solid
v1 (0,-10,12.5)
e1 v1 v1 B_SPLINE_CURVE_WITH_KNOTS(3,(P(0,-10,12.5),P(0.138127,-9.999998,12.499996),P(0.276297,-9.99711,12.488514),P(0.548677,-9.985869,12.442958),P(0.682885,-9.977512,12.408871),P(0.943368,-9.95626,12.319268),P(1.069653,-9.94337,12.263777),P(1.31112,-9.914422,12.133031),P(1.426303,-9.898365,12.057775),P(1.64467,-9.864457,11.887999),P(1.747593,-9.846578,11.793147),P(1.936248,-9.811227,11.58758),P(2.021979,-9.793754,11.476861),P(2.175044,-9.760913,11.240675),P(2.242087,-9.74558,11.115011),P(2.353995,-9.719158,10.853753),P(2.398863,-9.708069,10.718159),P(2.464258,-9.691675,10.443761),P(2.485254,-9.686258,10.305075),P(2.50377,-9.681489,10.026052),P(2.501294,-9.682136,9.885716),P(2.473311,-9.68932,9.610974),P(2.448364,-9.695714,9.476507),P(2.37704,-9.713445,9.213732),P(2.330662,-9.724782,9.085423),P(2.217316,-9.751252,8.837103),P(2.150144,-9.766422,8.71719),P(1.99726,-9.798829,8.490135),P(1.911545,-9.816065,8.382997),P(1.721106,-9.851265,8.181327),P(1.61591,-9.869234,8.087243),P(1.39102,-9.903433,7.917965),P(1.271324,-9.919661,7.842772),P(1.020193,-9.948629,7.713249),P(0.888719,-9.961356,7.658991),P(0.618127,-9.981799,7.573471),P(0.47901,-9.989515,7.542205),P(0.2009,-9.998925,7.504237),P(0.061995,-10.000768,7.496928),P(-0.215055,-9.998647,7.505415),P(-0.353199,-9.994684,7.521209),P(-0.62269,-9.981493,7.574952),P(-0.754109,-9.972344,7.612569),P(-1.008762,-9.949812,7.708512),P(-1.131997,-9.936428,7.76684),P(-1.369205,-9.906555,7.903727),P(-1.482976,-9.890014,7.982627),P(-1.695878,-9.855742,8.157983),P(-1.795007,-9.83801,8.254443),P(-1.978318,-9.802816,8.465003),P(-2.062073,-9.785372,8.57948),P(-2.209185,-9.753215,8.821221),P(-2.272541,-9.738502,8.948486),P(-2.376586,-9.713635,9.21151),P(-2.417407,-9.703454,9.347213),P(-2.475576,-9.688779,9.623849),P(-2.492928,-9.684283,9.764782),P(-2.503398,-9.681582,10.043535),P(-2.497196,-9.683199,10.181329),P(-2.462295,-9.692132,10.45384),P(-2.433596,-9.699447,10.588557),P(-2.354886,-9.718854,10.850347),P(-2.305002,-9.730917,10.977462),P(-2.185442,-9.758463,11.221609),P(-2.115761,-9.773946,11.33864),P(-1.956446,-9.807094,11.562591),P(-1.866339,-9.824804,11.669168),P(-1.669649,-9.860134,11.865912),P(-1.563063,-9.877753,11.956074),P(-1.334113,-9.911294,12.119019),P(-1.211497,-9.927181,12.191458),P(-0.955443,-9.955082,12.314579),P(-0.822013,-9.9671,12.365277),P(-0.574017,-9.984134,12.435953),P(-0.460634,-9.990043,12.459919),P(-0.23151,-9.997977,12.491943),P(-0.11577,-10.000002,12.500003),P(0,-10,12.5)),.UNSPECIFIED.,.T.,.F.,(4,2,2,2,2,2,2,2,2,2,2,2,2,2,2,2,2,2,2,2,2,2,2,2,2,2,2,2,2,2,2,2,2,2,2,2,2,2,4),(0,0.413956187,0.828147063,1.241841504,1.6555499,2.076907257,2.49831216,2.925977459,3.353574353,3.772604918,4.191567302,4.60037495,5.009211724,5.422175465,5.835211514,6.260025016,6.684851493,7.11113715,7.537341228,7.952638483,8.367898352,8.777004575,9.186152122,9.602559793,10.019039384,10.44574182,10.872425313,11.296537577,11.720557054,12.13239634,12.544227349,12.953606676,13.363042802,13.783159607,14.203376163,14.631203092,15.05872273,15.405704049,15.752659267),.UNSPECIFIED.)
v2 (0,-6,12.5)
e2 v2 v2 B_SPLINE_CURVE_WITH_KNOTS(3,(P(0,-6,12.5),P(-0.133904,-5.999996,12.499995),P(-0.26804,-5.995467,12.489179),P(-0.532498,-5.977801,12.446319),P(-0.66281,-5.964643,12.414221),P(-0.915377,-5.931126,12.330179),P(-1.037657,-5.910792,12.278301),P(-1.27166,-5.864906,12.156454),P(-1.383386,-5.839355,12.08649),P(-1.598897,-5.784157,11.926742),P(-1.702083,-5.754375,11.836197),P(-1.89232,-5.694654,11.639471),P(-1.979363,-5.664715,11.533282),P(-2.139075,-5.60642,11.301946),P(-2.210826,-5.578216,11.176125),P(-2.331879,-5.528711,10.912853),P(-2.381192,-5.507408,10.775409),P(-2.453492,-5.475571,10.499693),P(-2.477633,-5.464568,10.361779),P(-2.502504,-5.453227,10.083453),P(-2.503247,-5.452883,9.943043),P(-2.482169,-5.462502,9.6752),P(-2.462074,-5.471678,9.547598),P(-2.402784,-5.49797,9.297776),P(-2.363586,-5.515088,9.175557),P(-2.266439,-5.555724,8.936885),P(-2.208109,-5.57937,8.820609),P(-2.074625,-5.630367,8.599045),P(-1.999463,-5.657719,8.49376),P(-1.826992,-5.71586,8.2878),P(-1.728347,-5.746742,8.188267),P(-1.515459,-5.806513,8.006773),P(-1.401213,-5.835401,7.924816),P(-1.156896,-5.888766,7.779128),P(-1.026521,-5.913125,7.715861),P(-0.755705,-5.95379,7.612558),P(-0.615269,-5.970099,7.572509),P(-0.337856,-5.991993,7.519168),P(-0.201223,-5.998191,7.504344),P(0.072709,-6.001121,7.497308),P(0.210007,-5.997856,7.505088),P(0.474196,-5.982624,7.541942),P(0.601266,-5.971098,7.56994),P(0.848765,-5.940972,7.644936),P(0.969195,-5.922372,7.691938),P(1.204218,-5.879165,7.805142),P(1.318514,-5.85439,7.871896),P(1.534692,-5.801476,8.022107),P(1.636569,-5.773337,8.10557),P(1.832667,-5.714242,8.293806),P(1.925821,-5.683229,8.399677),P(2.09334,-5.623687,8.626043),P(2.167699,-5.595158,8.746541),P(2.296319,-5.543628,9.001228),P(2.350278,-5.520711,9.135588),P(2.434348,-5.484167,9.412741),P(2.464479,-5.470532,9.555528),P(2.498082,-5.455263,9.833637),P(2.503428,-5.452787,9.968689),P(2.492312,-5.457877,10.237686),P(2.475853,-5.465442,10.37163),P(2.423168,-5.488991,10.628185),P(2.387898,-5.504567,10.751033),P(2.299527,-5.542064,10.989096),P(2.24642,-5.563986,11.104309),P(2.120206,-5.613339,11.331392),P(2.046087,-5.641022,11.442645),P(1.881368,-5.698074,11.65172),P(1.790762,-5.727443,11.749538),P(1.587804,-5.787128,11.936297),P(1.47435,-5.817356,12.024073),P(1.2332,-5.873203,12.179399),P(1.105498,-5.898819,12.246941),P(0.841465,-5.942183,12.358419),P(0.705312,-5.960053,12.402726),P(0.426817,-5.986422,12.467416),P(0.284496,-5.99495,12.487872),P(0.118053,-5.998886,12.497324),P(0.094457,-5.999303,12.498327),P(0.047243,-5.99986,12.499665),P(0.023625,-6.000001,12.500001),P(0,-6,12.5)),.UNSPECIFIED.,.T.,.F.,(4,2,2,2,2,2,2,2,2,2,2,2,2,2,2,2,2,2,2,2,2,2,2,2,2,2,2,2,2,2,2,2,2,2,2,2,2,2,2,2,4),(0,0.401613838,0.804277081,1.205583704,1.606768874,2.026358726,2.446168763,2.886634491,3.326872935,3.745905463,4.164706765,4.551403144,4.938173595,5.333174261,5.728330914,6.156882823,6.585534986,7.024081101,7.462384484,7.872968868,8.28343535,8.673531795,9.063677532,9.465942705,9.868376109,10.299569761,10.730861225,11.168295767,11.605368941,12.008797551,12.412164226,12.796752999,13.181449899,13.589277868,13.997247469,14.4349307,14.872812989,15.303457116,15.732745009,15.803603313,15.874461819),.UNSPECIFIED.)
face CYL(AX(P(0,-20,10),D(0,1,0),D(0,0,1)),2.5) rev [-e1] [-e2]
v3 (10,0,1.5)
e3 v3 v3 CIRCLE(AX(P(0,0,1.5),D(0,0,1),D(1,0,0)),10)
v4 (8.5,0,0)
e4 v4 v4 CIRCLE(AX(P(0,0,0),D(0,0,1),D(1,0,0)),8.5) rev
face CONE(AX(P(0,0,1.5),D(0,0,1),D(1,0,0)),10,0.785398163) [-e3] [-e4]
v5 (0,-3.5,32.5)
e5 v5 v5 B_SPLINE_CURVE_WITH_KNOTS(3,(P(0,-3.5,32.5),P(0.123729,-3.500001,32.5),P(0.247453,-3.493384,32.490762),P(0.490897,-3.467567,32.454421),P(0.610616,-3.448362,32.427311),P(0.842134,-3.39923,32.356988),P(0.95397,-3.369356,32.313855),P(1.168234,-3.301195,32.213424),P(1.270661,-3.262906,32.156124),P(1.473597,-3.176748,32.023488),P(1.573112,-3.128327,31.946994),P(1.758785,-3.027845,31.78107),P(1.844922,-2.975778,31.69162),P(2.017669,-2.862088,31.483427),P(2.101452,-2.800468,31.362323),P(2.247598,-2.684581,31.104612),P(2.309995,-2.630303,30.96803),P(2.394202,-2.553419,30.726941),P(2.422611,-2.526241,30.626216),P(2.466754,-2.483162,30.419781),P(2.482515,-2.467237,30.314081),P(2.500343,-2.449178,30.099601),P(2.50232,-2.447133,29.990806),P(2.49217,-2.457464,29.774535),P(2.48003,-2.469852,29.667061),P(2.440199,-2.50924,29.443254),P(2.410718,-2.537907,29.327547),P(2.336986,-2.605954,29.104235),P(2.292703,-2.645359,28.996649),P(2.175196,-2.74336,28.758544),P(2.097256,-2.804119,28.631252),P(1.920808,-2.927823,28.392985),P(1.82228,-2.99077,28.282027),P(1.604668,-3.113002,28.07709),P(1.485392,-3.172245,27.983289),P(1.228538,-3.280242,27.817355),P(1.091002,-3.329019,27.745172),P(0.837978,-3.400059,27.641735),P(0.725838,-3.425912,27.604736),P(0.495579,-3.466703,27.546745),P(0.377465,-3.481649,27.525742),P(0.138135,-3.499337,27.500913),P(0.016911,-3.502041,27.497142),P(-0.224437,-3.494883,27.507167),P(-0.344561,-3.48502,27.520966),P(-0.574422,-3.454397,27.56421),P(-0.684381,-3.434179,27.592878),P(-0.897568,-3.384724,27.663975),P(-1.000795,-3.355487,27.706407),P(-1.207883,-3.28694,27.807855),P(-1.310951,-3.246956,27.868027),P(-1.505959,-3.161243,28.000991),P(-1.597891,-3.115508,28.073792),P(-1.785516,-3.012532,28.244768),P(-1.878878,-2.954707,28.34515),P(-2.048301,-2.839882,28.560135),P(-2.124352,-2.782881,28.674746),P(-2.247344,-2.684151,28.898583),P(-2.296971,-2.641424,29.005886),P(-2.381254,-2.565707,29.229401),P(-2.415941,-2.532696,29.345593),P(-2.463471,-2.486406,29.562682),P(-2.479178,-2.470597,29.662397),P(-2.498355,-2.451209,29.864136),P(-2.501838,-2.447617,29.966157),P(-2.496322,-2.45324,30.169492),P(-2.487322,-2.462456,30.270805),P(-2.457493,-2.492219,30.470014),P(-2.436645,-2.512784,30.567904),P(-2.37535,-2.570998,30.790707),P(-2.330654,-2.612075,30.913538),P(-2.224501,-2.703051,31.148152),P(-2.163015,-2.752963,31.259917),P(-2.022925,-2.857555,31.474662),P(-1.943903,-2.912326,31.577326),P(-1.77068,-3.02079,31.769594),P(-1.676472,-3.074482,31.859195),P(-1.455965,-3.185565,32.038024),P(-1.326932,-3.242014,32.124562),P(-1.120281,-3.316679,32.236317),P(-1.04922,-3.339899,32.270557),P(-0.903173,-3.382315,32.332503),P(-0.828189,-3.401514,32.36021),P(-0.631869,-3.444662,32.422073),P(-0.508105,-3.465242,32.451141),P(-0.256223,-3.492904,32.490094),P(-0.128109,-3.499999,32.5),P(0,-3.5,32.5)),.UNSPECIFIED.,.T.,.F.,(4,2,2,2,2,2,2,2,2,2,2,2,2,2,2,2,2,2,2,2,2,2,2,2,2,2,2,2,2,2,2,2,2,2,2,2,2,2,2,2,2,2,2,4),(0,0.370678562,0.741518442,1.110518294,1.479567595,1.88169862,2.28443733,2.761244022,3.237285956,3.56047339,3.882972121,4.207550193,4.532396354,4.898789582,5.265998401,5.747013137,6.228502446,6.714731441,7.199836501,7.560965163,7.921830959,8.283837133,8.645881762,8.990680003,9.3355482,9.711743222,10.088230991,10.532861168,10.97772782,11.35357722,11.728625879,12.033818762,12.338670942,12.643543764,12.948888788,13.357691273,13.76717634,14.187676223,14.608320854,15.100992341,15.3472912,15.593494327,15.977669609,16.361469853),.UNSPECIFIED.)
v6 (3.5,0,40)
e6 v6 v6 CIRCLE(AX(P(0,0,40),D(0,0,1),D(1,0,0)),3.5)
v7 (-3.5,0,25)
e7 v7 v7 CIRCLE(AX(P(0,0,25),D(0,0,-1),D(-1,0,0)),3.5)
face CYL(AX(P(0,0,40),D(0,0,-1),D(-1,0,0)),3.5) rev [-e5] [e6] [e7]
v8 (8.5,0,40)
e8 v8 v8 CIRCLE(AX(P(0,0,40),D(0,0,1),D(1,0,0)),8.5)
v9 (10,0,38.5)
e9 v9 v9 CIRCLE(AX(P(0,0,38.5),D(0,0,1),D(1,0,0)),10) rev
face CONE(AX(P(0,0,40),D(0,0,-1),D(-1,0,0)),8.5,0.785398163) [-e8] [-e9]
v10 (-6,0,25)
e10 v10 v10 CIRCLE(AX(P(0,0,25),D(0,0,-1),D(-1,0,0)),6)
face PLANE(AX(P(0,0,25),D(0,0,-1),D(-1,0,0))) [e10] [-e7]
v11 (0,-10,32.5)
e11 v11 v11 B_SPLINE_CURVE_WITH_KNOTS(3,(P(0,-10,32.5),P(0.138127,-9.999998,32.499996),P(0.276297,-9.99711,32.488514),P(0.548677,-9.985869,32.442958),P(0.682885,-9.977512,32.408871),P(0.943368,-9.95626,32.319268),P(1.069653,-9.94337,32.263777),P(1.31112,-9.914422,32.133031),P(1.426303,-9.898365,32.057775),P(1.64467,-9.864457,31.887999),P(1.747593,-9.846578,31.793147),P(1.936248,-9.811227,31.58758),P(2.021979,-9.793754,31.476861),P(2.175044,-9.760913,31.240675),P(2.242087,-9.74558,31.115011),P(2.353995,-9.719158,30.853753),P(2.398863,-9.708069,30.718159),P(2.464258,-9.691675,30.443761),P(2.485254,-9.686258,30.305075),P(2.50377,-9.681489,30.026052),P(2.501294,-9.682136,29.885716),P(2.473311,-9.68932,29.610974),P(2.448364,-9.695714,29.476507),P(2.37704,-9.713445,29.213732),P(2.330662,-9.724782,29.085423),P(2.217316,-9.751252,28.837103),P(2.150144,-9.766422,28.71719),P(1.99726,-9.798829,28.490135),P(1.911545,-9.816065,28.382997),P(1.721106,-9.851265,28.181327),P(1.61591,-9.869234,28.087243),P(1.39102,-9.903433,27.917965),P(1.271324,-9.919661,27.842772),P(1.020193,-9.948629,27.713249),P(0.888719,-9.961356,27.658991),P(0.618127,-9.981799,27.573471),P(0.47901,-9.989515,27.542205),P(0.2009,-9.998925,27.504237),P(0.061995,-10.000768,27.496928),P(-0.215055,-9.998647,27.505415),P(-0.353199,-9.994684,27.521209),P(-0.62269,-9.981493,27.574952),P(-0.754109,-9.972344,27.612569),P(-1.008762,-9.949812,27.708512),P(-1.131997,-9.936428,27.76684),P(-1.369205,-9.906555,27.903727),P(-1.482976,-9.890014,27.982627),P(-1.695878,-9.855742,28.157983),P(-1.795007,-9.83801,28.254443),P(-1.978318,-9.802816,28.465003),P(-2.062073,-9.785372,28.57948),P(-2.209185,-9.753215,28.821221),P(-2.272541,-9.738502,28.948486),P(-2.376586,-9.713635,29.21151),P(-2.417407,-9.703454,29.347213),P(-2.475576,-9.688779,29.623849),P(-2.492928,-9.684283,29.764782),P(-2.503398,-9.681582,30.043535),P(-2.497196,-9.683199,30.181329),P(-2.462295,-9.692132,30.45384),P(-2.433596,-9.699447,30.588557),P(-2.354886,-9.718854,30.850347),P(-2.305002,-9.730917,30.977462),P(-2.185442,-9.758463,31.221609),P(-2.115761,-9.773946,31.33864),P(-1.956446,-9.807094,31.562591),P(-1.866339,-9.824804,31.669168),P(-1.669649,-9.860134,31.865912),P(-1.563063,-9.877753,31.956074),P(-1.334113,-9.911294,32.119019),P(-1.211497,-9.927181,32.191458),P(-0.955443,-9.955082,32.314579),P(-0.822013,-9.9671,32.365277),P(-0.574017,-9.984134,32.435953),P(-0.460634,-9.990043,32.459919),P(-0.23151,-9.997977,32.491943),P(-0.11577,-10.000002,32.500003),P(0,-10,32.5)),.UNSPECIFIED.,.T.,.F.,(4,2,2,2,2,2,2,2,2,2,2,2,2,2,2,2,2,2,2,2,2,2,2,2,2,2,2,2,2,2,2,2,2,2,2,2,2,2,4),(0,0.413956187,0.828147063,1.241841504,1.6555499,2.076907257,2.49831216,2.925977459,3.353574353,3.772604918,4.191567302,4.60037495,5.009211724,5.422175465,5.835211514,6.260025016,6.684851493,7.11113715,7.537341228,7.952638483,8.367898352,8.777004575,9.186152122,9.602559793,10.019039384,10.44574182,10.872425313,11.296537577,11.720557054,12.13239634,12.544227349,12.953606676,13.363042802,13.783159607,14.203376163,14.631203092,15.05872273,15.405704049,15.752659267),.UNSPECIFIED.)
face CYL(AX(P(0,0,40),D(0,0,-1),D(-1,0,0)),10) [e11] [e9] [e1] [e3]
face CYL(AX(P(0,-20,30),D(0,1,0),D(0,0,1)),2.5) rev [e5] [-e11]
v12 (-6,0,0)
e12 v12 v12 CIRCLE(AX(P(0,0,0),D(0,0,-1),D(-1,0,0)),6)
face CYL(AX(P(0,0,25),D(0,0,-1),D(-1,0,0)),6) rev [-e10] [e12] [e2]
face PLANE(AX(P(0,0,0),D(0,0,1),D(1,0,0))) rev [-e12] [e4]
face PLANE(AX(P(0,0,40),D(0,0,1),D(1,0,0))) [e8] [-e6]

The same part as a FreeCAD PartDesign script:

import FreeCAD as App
import Part
import Sketcher
Q = App.Units.Quantity


def edges_at(feature, points):
    """Names of the edges that pass closest to the given points."""
    edges = feature.Shape.Edges
    near = lambda p: min(range(len(edges)), key=lambda i: edges[i].distToShape(Part.Vertex(*p))[0])
    return sorted({f"Edge{near(p) + 1}" for p in points})

doc = App.newDocument("Part")
body = doc.addObject("PartDesign::Body", "Body")

sketch1 = doc.addObject("Sketcher::SketchObject", "Sketch")
body.addObject(sketch1)
sketch1.AttachmentSupport = (doc.XY_Plane, [""])
sketch1.MapMode = "FlatFace"
sketch1.addGeometry([
    Part.Circle(App.Vector(0, 0, 0), App.Vector(0, 0, 1), 10),
    Part.Circle(App.Vector(0, 0, 0), App.Vector(0, 0, 1), 3.5),
], False)
sketch1.addConstraint([
    Sketcher.Constraint("Coincident", 0, 3, -1, 1),
    Sketcher.Constraint("Coincident", 1, 3, -1, 1),
    Sketcher.Constraint("Diameter", 0, Q("20 mm")),
    Sketcher.Constraint("Diameter", 1, Q("7 mm")),
])
pad1 = doc.addObject("PartDesign::Pad", "Pad")
body.addObject(pad1)
pad1.Profile = sketch1
pad1.Length = 40
doc.recompute()

chamfer = doc.addObject("PartDesign::Chamfer", "Chamfer")
body.addObject(chamfer)
chamfer.Base = (pad1, edges_at(pad1, [(-10, 0, 0), (-10, 0, 40)]))
chamfer.Size = 1.5

sketch2 = doc.addObject("Sketcher::SketchObject", "Sketch001")
body.addObject(sketch2)
sketch2.AttachmentSupport = (doc.XY_Plane, [""])
sketch2.MapMode = "FlatFace"
sketch2.addGeometry(Part.Circle(App.Vector(0, 0, 0), App.Vector(0, 0, 1), 6), False)
sketch2.addConstraint([
    Sketcher.Constraint("Coincident", 0, 3, -1, 1),
    Sketcher.Constraint("Diameter", 0, Q("12 mm")),
])
pocket1 = doc.addObject("PartDesign::Pocket", "Pocket")
body.addObject(pocket1)
pocket1.Profile = sketch2
pocket1.Length = 25
pocket1.Reversed = True

sketch3 = doc.addObject("Sketcher::SketchObject", "Sketch002")
body.addObject(sketch3)
sketch3.AttachmentSupport = (doc.XZ_Plane, [""])
sketch3.MapMode = "FlatFace"
sketch3.addGeometry([
    Part.Circle(App.Vector(0, 10, 0), App.Vector(0, 0, 1), 2.5),
    Part.Circle(App.Vector(0, 30, 0), App.Vector(0, 0, 1), 2.5),
], False)
sketch3.addConstraint([
    Sketcher.Constraint("Equal", 0, 1),
    Sketcher.Constraint("PointOnObject", 0, 3, -2),
    Sketcher.Constraint("PointOnObject", 1, 3, -2),
    Sketcher.Constraint("Diameter", 0, Q("5 mm")),
    Sketcher.Constraint("DistanceY", -1, 1, 0, 3, Q("10 mm")),
    Sketcher.Constraint("DistanceY", -1, 1, 1, 3, Q("30 mm")),
])
pocket2 = doc.addObject("PartDesign::Pocket", "Pocket001")
body.addObject(pocket2)
pocket2.Profile = sketch3
pocket2.Length = 20
pocket2.Reversed = True

doc.recompute()
